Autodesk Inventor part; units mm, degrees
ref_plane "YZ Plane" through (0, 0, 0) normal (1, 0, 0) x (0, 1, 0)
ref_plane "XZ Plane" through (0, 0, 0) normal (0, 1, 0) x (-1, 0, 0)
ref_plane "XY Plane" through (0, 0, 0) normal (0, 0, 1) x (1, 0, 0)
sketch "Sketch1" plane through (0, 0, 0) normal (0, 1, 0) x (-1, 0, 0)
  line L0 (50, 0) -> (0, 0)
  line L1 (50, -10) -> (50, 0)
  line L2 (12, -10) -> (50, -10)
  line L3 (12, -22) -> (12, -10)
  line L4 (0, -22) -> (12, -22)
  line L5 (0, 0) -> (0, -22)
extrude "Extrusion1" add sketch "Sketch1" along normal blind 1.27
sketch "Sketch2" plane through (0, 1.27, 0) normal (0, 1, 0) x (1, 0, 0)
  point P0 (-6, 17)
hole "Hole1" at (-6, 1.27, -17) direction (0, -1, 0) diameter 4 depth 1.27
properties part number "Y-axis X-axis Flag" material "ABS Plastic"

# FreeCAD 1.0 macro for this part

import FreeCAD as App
import Part
import Sketcher

V = App.Vector


def add_polygon(sketch, points):
    """Adds a closed chain of lines whose ends are joined by coincident constraints."""
    first, n = sketch.GeometryCount, len(points)
    for a, b in zip(points, points[1:] + points[:1]):
        sketch.addGeometry(Part.LineSegment(App.Vector(*a, 0), App.Vector(*b, 0)), False)
    for i in range(n):
        sketch.addConstraint(Sketcher.Constraint("Coincident", first + i, 2, first + (i + 1) % n, 1))

doc = App.newDocument("Part")
body = doc.addObject("PartDesign::Body", "Body")

# Sketch on XZ plane
sketch1 = doc.addObject("Sketcher::SketchObject", "Sketch")
body.addObject(sketch1)
sketch1.AttachmentSupport = (doc.XZ_Plane, [""])
sketch1.MapMode = "FlatFace"
add_polygon(sketch1, [(-50, -10), (-50, 0), (0, 0), (0, -22), (-12, -22), (-12, -10)])  # lines 0-5
sketch1.addConstraint([
    Sketcher.Constraint("Vertical", 0),
    Sketcher.Constraint("Horizontal", 1),
    Sketcher.Constraint("Vertical", 2),
    Sketcher.Constraint("Horizontal", 3),
    Sketcher.Constraint("Vertical", 4),
    Sketcher.Constraint("Horizontal", 5),
    Sketcher.Constraint("Coincident", 1, 2, -1, 1),
    Sketcher.Constraint("Equal", 3, 4),
    Sketcher.Constraint("DistanceX", 1, 1, 1, 2, 50.0),
    Sketcher.Constraint("DistanceX", 3, 2, 3, 1, 12.0),
    Sketcher.Constraint("DistanceY", 0, 1, 0, 2, 10.0),
])
pad1 = doc.addObject("PartDesign::Pad", "Pad")
body.addObject(pad1)
pad1.Profile = sketch1
pad1.Length = 1.27
pad1.Reversed = True

# Sketch on XZ plane
sketch2 = doc.addObject("Sketcher::SketchObject", "Sketch001")
body.addObject(sketch2)
sketch2.AttachmentSupport = (doc.XZ_Plane, [""])
sketch2.MapMode = "FlatFace"
sketch2.AttachmentOffset = App.Placement(V(0, 0, -1.27), App.Rotation())
sketch2.addGeometry(Part.Circle(V(-6, -17, 0), V(0, 0, 1), 2), False)
sketch2.addConstraint([
    Sketcher.Constraint("Diameter", 0, 4.0),
    Sketcher.Constraint("DistanceX", 0, 3, -1, 1, 6.0),
    Sketcher.Constraint("DistanceY", 0, 3, -1, 1, 17.0),
])
doc.recompute()
hole = doc.addObject("PartDesign::Hole", "Hole")
body.addObject(hole)
hole.Profile = sketch2
hole.ThreadType = "None"
hole.Diameter = 4
hole.DepthType = "Dimension"
hole.Depth = 1.27
hole.DrillPoint = "Flat"
hole.Reversed = True

doc.recompute()
